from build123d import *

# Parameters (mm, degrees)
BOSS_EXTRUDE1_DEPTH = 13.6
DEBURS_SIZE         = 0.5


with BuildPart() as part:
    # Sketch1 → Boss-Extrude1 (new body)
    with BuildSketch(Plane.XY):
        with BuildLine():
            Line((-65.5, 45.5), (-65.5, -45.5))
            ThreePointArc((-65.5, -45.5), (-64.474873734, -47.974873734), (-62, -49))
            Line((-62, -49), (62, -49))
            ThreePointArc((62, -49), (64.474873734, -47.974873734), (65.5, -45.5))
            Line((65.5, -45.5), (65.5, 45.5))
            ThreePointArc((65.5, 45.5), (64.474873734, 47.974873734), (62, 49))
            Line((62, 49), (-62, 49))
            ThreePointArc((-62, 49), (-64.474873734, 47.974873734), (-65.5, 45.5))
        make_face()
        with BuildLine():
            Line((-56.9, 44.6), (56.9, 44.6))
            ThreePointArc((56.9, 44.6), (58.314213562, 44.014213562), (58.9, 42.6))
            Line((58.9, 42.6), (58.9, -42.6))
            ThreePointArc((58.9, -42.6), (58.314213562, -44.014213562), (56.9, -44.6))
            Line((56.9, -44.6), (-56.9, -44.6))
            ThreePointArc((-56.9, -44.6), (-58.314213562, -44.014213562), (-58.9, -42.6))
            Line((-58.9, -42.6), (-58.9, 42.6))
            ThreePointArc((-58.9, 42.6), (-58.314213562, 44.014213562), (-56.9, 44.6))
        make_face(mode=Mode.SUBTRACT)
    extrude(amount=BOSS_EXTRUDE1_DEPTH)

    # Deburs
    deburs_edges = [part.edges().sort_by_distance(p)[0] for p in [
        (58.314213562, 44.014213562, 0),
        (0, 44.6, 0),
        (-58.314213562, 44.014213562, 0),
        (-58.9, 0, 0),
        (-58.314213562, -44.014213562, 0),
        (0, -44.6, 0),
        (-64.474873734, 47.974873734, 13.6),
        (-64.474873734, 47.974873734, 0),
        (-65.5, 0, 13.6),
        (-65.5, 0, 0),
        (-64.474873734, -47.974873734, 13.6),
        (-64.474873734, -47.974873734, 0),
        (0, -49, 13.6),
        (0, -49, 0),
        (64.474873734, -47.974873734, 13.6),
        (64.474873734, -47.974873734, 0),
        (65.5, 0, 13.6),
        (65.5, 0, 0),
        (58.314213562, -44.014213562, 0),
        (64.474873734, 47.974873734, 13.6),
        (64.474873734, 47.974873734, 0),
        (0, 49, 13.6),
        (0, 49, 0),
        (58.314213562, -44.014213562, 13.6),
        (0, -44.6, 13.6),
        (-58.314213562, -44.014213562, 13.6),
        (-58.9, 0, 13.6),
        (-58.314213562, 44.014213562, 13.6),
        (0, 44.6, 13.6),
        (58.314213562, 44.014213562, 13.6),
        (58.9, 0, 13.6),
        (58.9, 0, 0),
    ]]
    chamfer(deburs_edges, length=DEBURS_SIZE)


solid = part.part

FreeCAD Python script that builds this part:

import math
import FreeCAD as App
import Part
import Sketcher

V = App.Vector
Q = App.Units.Quantity


def edges_at(feature, points):
    """Names of the edges that pass closest to the given points."""
    edges = feature.Shape.Edges
    near = lambda p: min(range(len(edges)), key=lambda i: edges[i].distToShape(Part.Vertex(*p))[0])
    return sorted({f"Edge{near(p) + 1}" for p in points})

doc = App.newDocument("Part")
body = doc.addObject("PartDesign::Body", "Body")

sketch1 = doc.addObject("Sketcher::SketchObject", "Sketch")
body.addObject(sketch1)
sketch1.AttachmentSupport = (doc.XY_Plane, [""])
sketch1.MapMode = "FlatFace"
sketch1.addGeometry(Part.LineSegment(V(-65.5, 45.5, 0), V(-65.5, -45.5, 0)), False)
sketch1.addGeometry(Part.ArcOfCircle(Part.Circle(V(-62, -45.5, 0), V(0, 0, 1), 3.5), math.radians(-180), math.radians(-90)), False)
sketch1.addGeometry(Part.LineSegment(V(-62, -49, 0), V(62, -49, 0)), False)
sketch1.addGeometry(Part.ArcOfCircle(Part.Circle(V(62, -45.5, 0), V(0, 0, 1), 3.5), math.radians(-90), math.radians(0)), False)
sketch1.addGeometry(Part.LineSegment(V(65.5, -45.5, 0), V(65.5, 45.5, 0)), False)
sketch1.addGeometry(Part.ArcOfCircle(Part.Circle(V(62, 45.5, 0), V(0, 0, 1), 3.5), math.radians(0), math.radians(90)), False)
sketch1.addGeometry(Part.LineSegment(V(62, 49, 0), V(-62, 49, 0)), False)
sketch1.addGeometry(Part.ArcOfCircle(Part.Circle(V(-62, 45.5, 0), V(0, 0, 1), 3.5), math.radians(90), math.radians(180)), False)
sketch1.addGeometry(Part.ArcOfCircle(Part.Circle(V(-56.9, 42.6, 0), V(0, 0, 1), 2), math.radians(90), math.radians(180)), False)
sketch1.addGeometry(Part.LineSegment(V(-56.9, 44.6, 0), V(56.9, 44.6, 0)), False)
sketch1.addGeometry(Part.ArcOfCircle(Part.Circle(V(56.9, 42.6, 0), V(0, 0, 1), 2), math.radians(0), math.radians(90)), False)
sketch1.addGeometry(Part.LineSegment(V(58.9, 42.6, 0), V(58.9, -42.6, 0)), False)
sketch1.addGeometry(Part.ArcOfCircle(Part.Circle(V(56.9, -42.6, 0), V(0, 0, 1), 2), math.radians(-90), math.radians(0)), False)
sketch1.addGeometry(Part.LineSegment(V(56.9, -44.6, 0), V(-56.9, -44.6, 0)), False)
sketch1.addGeometry(Part.ArcOfCircle(Part.Circle(V(-56.9, -42.6, 0), V(0, 0, 1), 2), math.radians(-180), math.radians(-90)), False)
sketch1.addGeometry(Part.LineSegment(V(-58.9, -42.6, 0), V(-58.9, 42.6, 0)), False)
sketch1.addConstraint(Sketcher.Constraint("Tangent", 0, 2, 1, 1))
sketch1.addConstraint(Sketcher.Constraint("Tangent", 1, 2, 2, 1))
sketch1.addConstraint(Sketcher.Constraint("Tangent", 2, 2, 3, 1))
sketch1.addConstraint(Sketcher.Constraint("Tangent", 3, 2, 4, 1))
sketch1.addConstraint(Sketcher.Constraint("Tangent", 4, 2, 5, 1))
sketch1.addConstraint(Sketcher.Constraint("Tangent", 5, 2, 6, 1))
sketch1.addConstraint(Sketcher.Constraint("Tangent", 6, 2, 7, 1))
sketch1.addConstraint(Sketcher.Constraint("Tangent", 7, 2, 0, 1))
sketch1.addConstraint(Sketcher.Constraint("Tangent", 8, 1, 9, 1))
sketch1.addConstraint(Sketcher.Constraint("Tangent", 9, 2, 10, 2))
sketch1.addConstraint(Sketcher.Constraint("Tangent", 10, 1, 11, 1))
sketch1.addConstraint(Sketcher.Constraint("Tangent", 11, 2, 12, 2))
sketch1.addConstraint(Sketcher.Constraint("Tangent", 12, 1, 13, 1))
sketch1.addConstraint(Sketcher.Constraint("Tangent", 13, 2, 14, 2))
sketch1.addConstraint(Sketcher.Constraint("Tangent", 14, 1, 15, 1))
sketch1.addConstraint(Sketcher.Constraint("Tangent", 15, 2, 8, 2))
sketch1.addConstraint(Sketcher.Constraint("Vertical", 0))
sketch1.addConstraint(Sketcher.Constraint("Horizontal", 2))
sketch1.addConstraint(Sketcher.Constraint("Vertical", 4))
sketch1.addConstraint(Sketcher.Constraint("Horizontal", 6))
sketch1.addConstraint(Sketcher.Constraint("Horizontal", 9))
sketch1.addConstraint(Sketcher.Constraint("Vertical", 11))
sketch1.addConstraint(Sketcher.Constraint("Horizontal", 13))
sketch1.addConstraint(Sketcher.Constraint("Vertical", 15))
sketch1.addConstraint(Sketcher.Constraint("Equal", 1, 3))
sketch1.addConstraint(Sketcher.Constraint("Equal", 3, 5))
sketch1.addConstraint(Sketcher.Constraint("Equal", 5, 7))
sketch1.addConstraint(Sketcher.Constraint("Equal", 8, 10))
sketch1.addConstraint(Sketcher.Constraint("Equal", 10, 12))
sketch1.addConstraint(Sketcher.Constraint("Equal", 12, 14))
sketch1.addConstraint(Sketcher.Constraint("Symmetric", 1, 3, 5, 3, -1, 1))
sketch1.addConstraint(Sketcher.Constraint("Symmetric", 8, 3, 12, 3, -1, 1))
sketch1.addConstraint(Sketcher.Constraint("Radius", 8, Q("2 mm")))
sketch1.addConstraint(Sketcher.Constraint("Radius", 1, Q("3.5 mm")))
sketch1.addConstraint(Sketcher.Constraint("DistanceX", 2, 1, 2, 2, Q("124 mm")))
sketch1.addConstraint(Sketcher.Constraint("DistanceY", 0, 2, 0, 1, Q("91 mm")))
sketch1.addConstraint(Sketcher.Constraint("DistanceX", 9, 1, 9, 2, Q("113.8 mm")))
sketch1.addConstraint(Sketcher.Constraint("DistanceY", 11, 2, 11, 1, Q("85.2 mm")))
pad1 = doc.addObject("PartDesign::Pad", "Pad")
body.addObject(pad1)
pad1.Profile = sketch1
pad1.Length = 13.6
doc.recompute()

chamfer = doc.addObject("PartDesign::Chamfer", "Chamfer")
body.addObject(chamfer)
chamfer.Base = (pad1, edges_at(pad1, [
    (58.314, 44.014, 0),
    (0, 44.6, 0),
    (-58.314, 44.014, 0),
    (-58.9, 0, 0),
    (-58.314, -44.014, 0),
    (0, -44.6, 0),
    (-64.475, 47.975, 13.6),
    (-64.475, 47.975, 0),
    (-65.5, 0, 13.6),
    (-65.5, 0, 0),
    (-64.475, -47.975, 13.6),
    (-64.475, -47.975, 0),
    (0, -49, 13.6),
    (0, -49, 0),
    (64.475, -47.975, 13.6),
    (64.475, -47.975, 0),
    (65.5, 0, 13.6),
    (65.5, 0, 0),
    (58.314, -44.014, 0),
    (64.475, 47.975, 13.6),
    (64.475, 47.975, 0),
    (0, 49, 13.6),
    (0, 49, 0),
    (58.314, -44.014, 13.6),
    (0, -44.6, 13.6),
    (-58.314, -44.014, 13.6),
    (-58.9, 0, 13.6),
    (-58.314, 44.014, 13.6),
    (0, 44.6, 13.6),
    (58.314, 44.014, 13.6),
    (58.9, 0, 13.6),
    (58.9, 0, 0),
]))
chamfer.Size = 0.5

doc.recompute()
